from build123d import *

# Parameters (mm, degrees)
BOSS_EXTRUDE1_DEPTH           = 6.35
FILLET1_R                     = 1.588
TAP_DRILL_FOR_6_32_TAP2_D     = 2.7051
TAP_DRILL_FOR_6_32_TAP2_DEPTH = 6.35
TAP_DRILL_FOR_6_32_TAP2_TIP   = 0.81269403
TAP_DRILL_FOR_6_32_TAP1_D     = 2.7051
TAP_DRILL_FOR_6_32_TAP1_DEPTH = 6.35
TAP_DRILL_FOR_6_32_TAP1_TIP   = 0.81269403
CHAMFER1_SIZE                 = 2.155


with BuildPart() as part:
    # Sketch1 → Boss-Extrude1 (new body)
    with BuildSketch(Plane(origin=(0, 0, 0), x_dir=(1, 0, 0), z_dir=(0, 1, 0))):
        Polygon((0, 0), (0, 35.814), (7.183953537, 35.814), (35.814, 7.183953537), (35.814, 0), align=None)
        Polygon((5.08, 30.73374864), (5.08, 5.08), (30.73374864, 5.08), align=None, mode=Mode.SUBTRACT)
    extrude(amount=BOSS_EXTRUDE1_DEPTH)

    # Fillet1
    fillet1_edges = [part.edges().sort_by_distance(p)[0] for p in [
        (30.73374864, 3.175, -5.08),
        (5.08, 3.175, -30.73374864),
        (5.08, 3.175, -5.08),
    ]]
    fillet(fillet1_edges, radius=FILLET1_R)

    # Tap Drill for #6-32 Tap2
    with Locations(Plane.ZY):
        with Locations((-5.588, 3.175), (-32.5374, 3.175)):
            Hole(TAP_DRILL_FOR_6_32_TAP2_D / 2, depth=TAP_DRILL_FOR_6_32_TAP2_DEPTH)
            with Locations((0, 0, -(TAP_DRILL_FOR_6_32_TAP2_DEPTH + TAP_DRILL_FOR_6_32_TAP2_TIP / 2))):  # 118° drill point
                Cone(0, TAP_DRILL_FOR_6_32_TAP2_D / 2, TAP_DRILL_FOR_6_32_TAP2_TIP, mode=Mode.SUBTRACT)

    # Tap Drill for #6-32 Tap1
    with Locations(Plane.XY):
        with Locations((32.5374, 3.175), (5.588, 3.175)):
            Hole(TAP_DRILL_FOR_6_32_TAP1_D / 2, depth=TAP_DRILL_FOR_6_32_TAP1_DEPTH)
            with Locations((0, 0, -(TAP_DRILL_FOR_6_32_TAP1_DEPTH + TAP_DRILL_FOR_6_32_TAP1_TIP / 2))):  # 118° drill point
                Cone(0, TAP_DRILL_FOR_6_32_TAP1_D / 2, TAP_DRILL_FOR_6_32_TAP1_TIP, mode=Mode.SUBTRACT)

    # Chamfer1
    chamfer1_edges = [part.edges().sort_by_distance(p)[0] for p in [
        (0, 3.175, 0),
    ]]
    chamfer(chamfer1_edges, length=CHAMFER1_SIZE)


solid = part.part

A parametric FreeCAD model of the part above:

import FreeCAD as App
import Part
import Sketcher
from FreeCAD import Vector
Q = App.Units.Quantity


def edges_at(feature, points):
    """Names of the edges that pass closest to the given points."""
    edges = feature.Shape.Edges
    near = lambda p: min(range(len(edges)), key=lambda i: edges[i].distToShape(Part.Vertex(*p))[0])
    return sorted({f"Edge{near(p) + 1}" for p in points})

doc = App.newDocument("Part")
body = doc.addObject("PartDesign::Body", "Body")

sketch1 = doc.addObject("Sketcher::SketchObject", "Sketch")
body.addObject(sketch1)
sketch1.AttachmentSupport = (doc.XZ_Plane, [""])
sketch1.MapMode = "FlatFace"
sketch1.addGeometry(Part.LineSegment(Vector(0, -36, 0), Vector(0, 0, 0)), False)
sketch1.addGeometry(Part.LineSegment(Vector(0, 0, 0), Vector(36, 0, 0)), False)
sketch1.addGeometry(Part.LineSegment(Vector(36, 0, 0), Vector(36, -7, 0)), False)
sketch1.addGeometry(Part.LineSegment(Vector(36, -7, 0), Vector(7, -36, 0)), False)
sketch1.addGeometry(Part.LineSegment(Vector(7, -36, 0), Vector(0, -36, 0)), False)
sketch1.addGeometry(Part.LineSegment(Vector(5, -31, 0), Vector(31, -5, 0)), False)
sketch1.addGeometry(Part.LineSegment(Vector(31, -5, 0), Vector(5, -5, 0)), False)
sketch1.addGeometry(Part.LineSegment(Vector(5, -5, 0), Vector(5, -31, 0)), False)
sketch1.addConstraint(Sketcher.Constraint("Coincident", 0, 2, 1, 1))
sketch1.addConstraint(Sketcher.Constraint("Coincident", 1, 2, 2, 1))
sketch1.addConstraint(Sketcher.Constraint("Coincident", 2, 2, 3, 1))
sketch1.addConstraint(Sketcher.Constraint("Coincident", 3, 2, 4, 1))
sketch1.addConstraint(Sketcher.Constraint("Coincident", 4, 2, 0, 1))
sketch1.addConstraint(Sketcher.Constraint("Coincident", 5, 2, 6, 1))
sketch1.addConstraint(Sketcher.Constraint("Coincident", 6, 2, 7, 1))
sketch1.addConstraint(Sketcher.Constraint("Coincident", 7, 2, 5, 1))
sketch1.addConstraint(Sketcher.Constraint("Vertical", 0))
sketch1.addConstraint(Sketcher.Constraint("Horizontal", 1))
sketch1.addConstraint(Sketcher.Constraint("Vertical", 2))
sketch1.addConstraint(Sketcher.Constraint("Horizontal", 4))
sketch1.addConstraint(Sketcher.Constraint("Horizontal", 6))
sketch1.addConstraint(Sketcher.Constraint("Vertical", 7))
sketch1.addConstraint(Sketcher.Constraint("Coincident", 0, 2, -1, 1))
sketch1.addConstraint(Sketcher.Constraint("Parallel", 3, 5))
sketch1.addConstraint(Sketcher.Constraint("Equal", 1, 0))
sketch1.addConstraint(Sketcher.Constraint("Equal", 4, 2))
sketch1.addConstraint(Sketcher.Constraint("DistanceX", 1, 1, 1, 2, Q("1.41 in")))
sketch1.addConstraint(Sketcher.Constraint("DistanceY", 5, 2, -1, 1, Q("0.2 in")))
sketch1.addConstraint(Sketcher.Constraint("DistanceX", -1, 1, 6, 2, Q("0.2 in")))
sketch1.addConstraint(Sketcher.Constraint("Distance", 3, Q("40.489 mm")))
sketch1.addConstraint(Sketcher.Constraint("DistanceX", 6, 2, 6, 1, Q("25.653749 mm")))
pad1 = doc.addObject("PartDesign::Pad", "Pad")
body.addObject(pad1)
pad1.Profile = sketch1
pad1.Length = Q("0.25 in")
pad1.Reversed = True
doc.recompute()

fillet = doc.addObject("PartDesign::Fillet", "Fillet")
body.addObject(fillet)
fillet.Base = (pad1, edges_at(pad1, [(30.734, 3.175, -5.08), (5.08, 3.175, -30.734), (5.08, 3.175, -5.08)]))
fillet.Radius = 1.588

sketch2 = doc.addObject("Sketcher::SketchObject", "Sketch001")
body.addObject(sketch2)
sketch2.AttachmentSupport = (doc.YZ_Plane, [""])
sketch2.MapMode = "FlatFace"
sketch2.addGeometry(Part.Circle(Vector(3.2, -5.6, 0), Vector(0, 0, 1), 1.4), False)
sketch2.addGeometry(Part.Circle(Vector(3.2, -32.5, 0), Vector(0, 0, 1), 1.4), False)
sketch2.addConstraint(Sketcher.Constraint("Equal", 0, 1))
sketch2.addConstraint(Sketcher.Constraint("Vertical", 0, 3, 1, 3))
sketch2.addConstraint(Sketcher.Constraint("Diameter", 0, Q("0.1065 in")))
sketch2.addConstraint(Sketcher.Constraint("DistanceY", 0, 3, -1, 1, Q("0.22 in")))
sketch2.addConstraint(Sketcher.Constraint("DistanceX", -1, 1, 0, 3, Q("0.125 in")))
sketch2.addConstraint(Sketcher.Constraint("DistanceY", 1, 3, -1, 1, Q("1.281 in")))
doc.recompute()
hole = doc.addObject("PartDesign::Hole", "Hole")
body.addObject(hole)
hole.Profile = sketch2
hole.ThreadType = "None"
hole.Diameter = Q("0.1065 in")
hole.DepthType = "Dimension"
hole.Depth = Q("0.25 in")
hole.DrillPoint = "Angled"
hole.DrillPointAngle = 118
hole.Reversed = True

sketch3 = doc.addObject("Sketcher::SketchObject", "Sketch002")
body.addObject(sketch3)
sketch3.AttachmentSupport = (doc.XY_Plane, [""])
sketch3.MapMode = "FlatFace"
sketch3.addGeometry(Part.Circle(Vector(32.5, 3.2, 0), Vector(0, 0, 1), 1.4), False)
sketch3.addGeometry(Part.Circle(Vector(5.6, 3.2, 0), Vector(0, 0, 1), 1.4), False)
sketch3.addConstraint(Sketcher.Constraint("Equal", 0, 1))
sketch3.addConstraint(Sketcher.Constraint("Horizontal", 0, 3, 1, 3))
sketch3.addConstraint(Sketcher.Constraint("Diameter", 0, Q("0.1065 in")))
sketch3.addConstraint(Sketcher.Constraint("DistanceX", -1, 1, 1, 3, Q("0.22 in")))
sketch3.addConstraint(Sketcher.Constraint("DistanceX", -1, 1, 0, 3, Q("1.281 in")))
sketch3.addConstraint(Sketcher.Constraint("DistanceY", -1, 1, 0, 3, Q("0.125 in")))
doc.recompute()
hole2 = doc.addObject("PartDesign::Hole", "Hole001")
body.addObject(hole2)
hole2.Profile = sketch3
hole2.ThreadType = "None"
hole2.Diameter = Q("0.1065 in")
hole2.DepthType = "Dimension"
hole2.Depth = Q("0.25 in")
hole2.DrillPoint = "Angled"
hole2.DrillPointAngle = 118
doc.recompute()

chamfer = doc.addObject("PartDesign::Chamfer", "Chamfer")
body.addObject(chamfer)
chamfer.Base = (hole2, edges_at(hole2, [(0, 3.175, 0)]))
chamfer.Size = 2.155

doc.recompute()
